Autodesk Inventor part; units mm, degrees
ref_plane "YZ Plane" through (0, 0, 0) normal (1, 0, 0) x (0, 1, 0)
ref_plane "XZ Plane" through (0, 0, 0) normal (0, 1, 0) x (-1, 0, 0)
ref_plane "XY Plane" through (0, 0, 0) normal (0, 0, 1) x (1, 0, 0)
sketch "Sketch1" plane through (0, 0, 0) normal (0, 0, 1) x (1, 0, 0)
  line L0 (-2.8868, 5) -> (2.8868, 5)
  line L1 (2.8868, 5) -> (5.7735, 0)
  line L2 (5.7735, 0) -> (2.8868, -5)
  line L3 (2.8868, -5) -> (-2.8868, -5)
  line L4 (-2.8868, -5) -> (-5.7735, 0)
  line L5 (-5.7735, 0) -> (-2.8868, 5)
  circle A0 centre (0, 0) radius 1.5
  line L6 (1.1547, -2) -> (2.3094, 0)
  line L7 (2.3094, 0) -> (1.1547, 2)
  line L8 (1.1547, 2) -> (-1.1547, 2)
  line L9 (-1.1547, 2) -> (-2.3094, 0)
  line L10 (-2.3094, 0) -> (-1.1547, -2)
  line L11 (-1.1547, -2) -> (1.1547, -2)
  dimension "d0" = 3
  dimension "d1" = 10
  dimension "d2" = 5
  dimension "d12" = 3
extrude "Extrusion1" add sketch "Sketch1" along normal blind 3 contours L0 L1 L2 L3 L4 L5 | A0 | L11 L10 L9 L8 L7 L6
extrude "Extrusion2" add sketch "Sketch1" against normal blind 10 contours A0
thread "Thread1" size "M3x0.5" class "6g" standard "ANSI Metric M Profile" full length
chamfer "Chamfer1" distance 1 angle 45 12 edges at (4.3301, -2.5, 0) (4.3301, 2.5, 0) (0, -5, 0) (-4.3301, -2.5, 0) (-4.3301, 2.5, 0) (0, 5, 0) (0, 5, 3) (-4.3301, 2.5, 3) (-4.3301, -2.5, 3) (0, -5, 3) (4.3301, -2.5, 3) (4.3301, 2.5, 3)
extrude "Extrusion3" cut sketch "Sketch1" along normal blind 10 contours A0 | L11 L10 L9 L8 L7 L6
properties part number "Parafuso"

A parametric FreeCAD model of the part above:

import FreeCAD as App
import Part
import Sketcher
from FreeCAD import Vector
Q = App.Units.Quantity


def edges_at(feature, points):
    """Names of the edges that pass closest to the given points."""
    edges = feature.Shape.Edges
    near = lambda p: min(range(len(edges)), key=lambda i: edges[i].distToShape(Part.Vertex(*p))[0])
    return sorted({f"Edge{near(p) + 1}" for p in points})


def add_polygon(sketch, points):
    """Adds a closed chain of lines whose ends are joined by coincident constraints."""
    first, n = sketch.GeometryCount, len(points)
    for a, b in zip(points, points[1:] + points[:1]):
        sketch.addGeometry(Part.LineSegment(App.Vector(*a, 0), App.Vector(*b, 0)), False)
    for i in range(n):
        sketch.addConstraint(Sketcher.Constraint("Coincident", first + i, 2, first + (i + 1) % n, 1))

doc = App.newDocument("Part")
body = doc.addObject("PartDesign::Body", "Body")
body.AllowCompound = True

sketch1 = body.newObject("Sketcher::SketchObject", "Sketch")
sketch1.AttachmentSupport = (doc.getObject("XY_Plane"), [""])
sketch1.MapMode = "FlatFace"
add_polygon(sketch1, [(3, 5), (-3, 5), (-6, 0), (-3, -5), (3, -5), (6, 0)])
sketch1.addConstraint([
    Sketcher.Constraint("Horizontal", 0),
    Sketcher.Constraint("Horizontal", 3),
    Sketcher.Constraint("Symmetric", 0, 2, 3, 2, -1, 1),
    Sketcher.Constraint("Symmetric", 1, 2, 4, 2, -1, 1),
    Sketcher.Constraint("PointOnObject", 1, 2, -1),
    Sketcher.Constraint("Parallel", 2, 5),
    Sketcher.Constraint("Vertical", 0, 2, 2, 2),
    Sketcher.Constraint("DistanceY", -1, 1, 0, 2, 5.0),
    Sketcher.Constraint("Angle", 1, Q("-119.9996 deg")),
    Sketcher.Constraint("DistanceX", 0, 2, 0, 1, 5.7736),
])
pad1 = body.newObject("PartDesign::Pad", "Pad")
pad1.Profile = sketch1
pad1.Length = 3

sketch2 = body.newObject("Sketcher::SketchObject", "Sketch001")
sketch2.AttachmentSupport = (doc.getObject("XY_Plane"), [""])
sketch2.MapMode = "FlatFace"
sketch2.addGeometry(Part.Circle(Vector(0, 0, 0), Vector(0, 0, 1), 1.5), False)
sketch2.addConstraint([
    Sketcher.Constraint("Coincident", 0, 3, -1, 1),
    Sketcher.Constraint("Diameter", 0, 3.0),
])
pad2 = body.newObject("PartDesign::Pad", "Pad001")
pad2.Profile = sketch2
pad2.Length = 10
pad2.Reversed = True
doc.recompute()

chamfer = body.newObject("PartDesign::Chamfer", "Chamfer")
chamfer.Base = (pad2, edges_at(pad2, [
    (4.33, -2.5, 0),
    (4.33, 2.5, 0),
    (0, -5, 0),
    (-4.33, -2.5, 0),
    (-4.33, 2.5, 0),
    (0, 5, 0),
    (0, 5, 3),
    (-4.33, 2.5, 3),
    (-4.33, -2.5, 3),
    (0, -5, 3),
    (4.33, -2.5, 3),
    (4.33, 2.5, 3),
]))
chamfer.Size = 1

sketch3 = body.newObject("Sketcher::SketchObject", "Sketch002")
sketch3.AttachmentSupport = (doc.getObject("XY_Plane"), [""])
sketch3.MapMode = "FlatFace"
add_polygon(sketch3, [(-1.2, -2), (1.2, -2), (2.3, 0), (1.2, 2), (-1.2, 2), (-2.3, 0)])
sketch3.addConstraint([
    Sketcher.Constraint("Horizontal", 0),
    Sketcher.Constraint("Horizontal", 3),
    Sketcher.Constraint("Symmetric", 0, 2, 3, 2, -1, 1),
    Sketcher.Constraint("Symmetric", 1, 2, 4, 2, -1, 1),
    Sketcher.Constraint("PointOnObject", 1, 2, -1),
    Sketcher.Constraint("Parallel", 2, 5),
    Sketcher.Constraint("Vertical", 0, 2, 2, 2),
    Sketcher.Constraint("Angle", 1, Q("60 deg")),
    Sketcher.Constraint("DistanceY", 0, 2, -1, 1, 2.0),
    Sketcher.Constraint("DistanceX", 0, 1, 0, 2, 2.3094),
])
pocket1 = body.newObject("PartDesign::Pocket", "Pocket")
pocket1.Profile = sketch3
pocket1.Length = 10
pocket1.Reversed = True

doc.recompute()
